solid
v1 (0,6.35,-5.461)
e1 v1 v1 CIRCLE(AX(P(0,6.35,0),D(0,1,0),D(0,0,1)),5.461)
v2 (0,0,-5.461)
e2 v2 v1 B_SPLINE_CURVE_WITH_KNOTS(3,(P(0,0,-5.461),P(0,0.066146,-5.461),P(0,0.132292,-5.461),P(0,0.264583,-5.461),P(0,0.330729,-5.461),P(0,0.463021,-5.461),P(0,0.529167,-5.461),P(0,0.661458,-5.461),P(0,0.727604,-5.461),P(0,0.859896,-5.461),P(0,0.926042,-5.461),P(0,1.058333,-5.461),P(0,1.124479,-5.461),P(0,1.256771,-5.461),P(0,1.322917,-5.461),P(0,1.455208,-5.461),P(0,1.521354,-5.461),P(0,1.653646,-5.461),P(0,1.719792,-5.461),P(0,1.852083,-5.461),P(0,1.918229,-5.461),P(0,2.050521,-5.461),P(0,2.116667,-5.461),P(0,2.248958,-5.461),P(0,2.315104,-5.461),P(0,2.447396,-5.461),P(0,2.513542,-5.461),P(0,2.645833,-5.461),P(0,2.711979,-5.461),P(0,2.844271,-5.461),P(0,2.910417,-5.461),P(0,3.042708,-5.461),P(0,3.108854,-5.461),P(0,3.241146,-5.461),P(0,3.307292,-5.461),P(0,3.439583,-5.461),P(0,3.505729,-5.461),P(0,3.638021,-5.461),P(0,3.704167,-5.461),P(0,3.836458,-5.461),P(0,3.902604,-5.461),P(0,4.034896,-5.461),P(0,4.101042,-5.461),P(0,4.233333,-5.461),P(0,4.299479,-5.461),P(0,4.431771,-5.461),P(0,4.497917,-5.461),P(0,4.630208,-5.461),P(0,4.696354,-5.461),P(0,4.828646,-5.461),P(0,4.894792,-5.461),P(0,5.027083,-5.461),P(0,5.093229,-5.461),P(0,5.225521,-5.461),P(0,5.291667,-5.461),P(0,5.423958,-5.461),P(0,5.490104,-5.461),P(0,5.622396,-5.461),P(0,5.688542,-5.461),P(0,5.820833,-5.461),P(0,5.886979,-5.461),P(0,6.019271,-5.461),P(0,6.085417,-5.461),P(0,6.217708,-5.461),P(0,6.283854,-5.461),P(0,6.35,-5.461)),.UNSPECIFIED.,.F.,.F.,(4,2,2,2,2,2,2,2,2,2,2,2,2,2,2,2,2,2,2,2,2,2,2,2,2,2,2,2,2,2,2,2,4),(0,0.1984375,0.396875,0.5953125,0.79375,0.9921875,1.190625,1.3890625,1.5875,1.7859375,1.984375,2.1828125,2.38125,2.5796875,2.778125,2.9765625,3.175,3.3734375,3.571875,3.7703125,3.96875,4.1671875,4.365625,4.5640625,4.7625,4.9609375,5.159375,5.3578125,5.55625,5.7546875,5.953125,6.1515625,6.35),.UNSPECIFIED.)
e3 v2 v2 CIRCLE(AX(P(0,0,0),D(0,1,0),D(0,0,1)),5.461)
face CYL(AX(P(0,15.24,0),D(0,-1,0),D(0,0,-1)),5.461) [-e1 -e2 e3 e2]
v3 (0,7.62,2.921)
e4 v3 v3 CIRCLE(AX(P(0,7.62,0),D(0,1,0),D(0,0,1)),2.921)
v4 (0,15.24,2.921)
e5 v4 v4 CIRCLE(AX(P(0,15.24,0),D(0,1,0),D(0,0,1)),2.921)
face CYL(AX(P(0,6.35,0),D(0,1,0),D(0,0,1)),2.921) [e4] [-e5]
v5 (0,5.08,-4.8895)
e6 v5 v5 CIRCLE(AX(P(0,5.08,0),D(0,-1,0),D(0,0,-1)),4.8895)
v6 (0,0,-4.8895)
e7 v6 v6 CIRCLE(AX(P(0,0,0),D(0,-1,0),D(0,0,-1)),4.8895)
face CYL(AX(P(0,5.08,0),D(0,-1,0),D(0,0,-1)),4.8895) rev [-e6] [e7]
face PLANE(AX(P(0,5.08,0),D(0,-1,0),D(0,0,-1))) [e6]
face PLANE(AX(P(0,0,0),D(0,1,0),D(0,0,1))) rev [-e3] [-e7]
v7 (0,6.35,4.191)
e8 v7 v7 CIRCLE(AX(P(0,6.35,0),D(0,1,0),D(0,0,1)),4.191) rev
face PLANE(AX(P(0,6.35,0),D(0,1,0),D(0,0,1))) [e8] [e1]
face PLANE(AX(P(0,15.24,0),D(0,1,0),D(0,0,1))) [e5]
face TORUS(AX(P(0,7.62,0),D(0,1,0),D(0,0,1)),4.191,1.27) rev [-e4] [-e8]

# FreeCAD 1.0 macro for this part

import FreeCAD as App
import Part
import Sketcher

V = App.Vector
Q = App.Units.Quantity


def edges_at(feature, points):
    """Names of the edges that pass closest to the given points."""
    edges = feature.Shape.Edges
    near = lambda p: min(range(len(edges)), key=lambda i: edges[i].distToShape(Part.Vertex(*p))[0])
    return sorted({f"Edge{near(p) + 1}" for p in points})

doc = App.newDocument("Part")
body = doc.addObject("PartDesign::Body", "Body")

sketch1 = doc.addObject("Sketcher::SketchObject", "Sketch")
body.addObject(sketch1)
sketch1.AttachmentSupport = (doc.XZ_Plane, [""])
sketch1.MapMode = "FlatFace"
sketch1.addGeometry(Part.Circle(V(0, 0, 0), V(0, 0, 1), 5.461), False)
sketch1.addConstraint([
    Sketcher.Constraint("Coincident", 0, 3, -1, 1),
    Sketcher.Constraint("Diameter", 0, Q("0.43 in")),
])
pad1 = doc.addObject("PartDesign::Pad", "Pad")
body.addObject(pad1)
pad1.Profile = sketch1
pad1.Length = Q("0.6 in")
pad1.Reversed = True

sketch2 = doc.addObject("Sketcher::SketchObject", "Sketch001")
body.addObject(sketch2)
sketch2.AttachmentSupport = (doc.XZ_Plane, [""])
sketch2.MapMode = "FlatFace"
sketch2.AttachmentOffset = App.Placement(V(0, 0, -0.6 * 25.4), App.Rotation())
sketch2.addGeometry([
    Part.LineSegment(V(-8.631, -8.631, 0), V(-8.631, 8.631, 0)),
    Part.LineSegment(V(-8.631, 8.631, 0), V(8.631, 8.631, 0)),
    Part.LineSegment(V(8.631, 8.631, 0), V(8.631, -8.631, 0)),
    Part.LineSegment(V(8.631, -8.631, 0), V(-8.631, -8.631, 0)),
    Part.Circle(V(0, 0, 0), V(0, 0, 1), 2.921),
], False)
sketch2.addConstraint([
    Sketcher.Constraint("Coincident", 0, 2, 1, 1),
    Sketcher.Constraint("Coincident", 1, 2, 2, 1),
    Sketcher.Constraint("Coincident", 2, 2, 3, 1),
    Sketcher.Constraint("Coincident", 3, 2, 0, 1),
    Sketcher.Constraint("Vertical", 0),
    Sketcher.Constraint("Horizontal", 1),
    Sketcher.Constraint("Vertical", 2),
    Sketcher.Constraint("Horizontal", 3),
    Sketcher.Constraint("Coincident", 4, 3, -1, 1),
    Sketcher.Constraint("Symmetric", 0, 2, 2, 2, -1, 1),
    Sketcher.Constraint("Equal", 3, 0),
    Sketcher.Constraint("Diameter", 4, Q("0.23 in")),
    Sketcher.Constraint("DistanceX", 1, 1, 1, 2, Q("17.262 mm")),
])
pocket1 = doc.addObject("PartDesign::Pocket", "Pocket")
body.addObject(pocket1)
pocket1.Profile = sketch2
pocket1.Length = Q("0.35 in")
pocket1.Reversed = True

sketch3 = doc.addObject("Sketcher::SketchObject", "Sketch002")
body.addObject(sketch3)
sketch3.AttachmentSupport = (doc.XZ_Plane, [""])
sketch3.MapMode = "FlatFace"
sketch3.addGeometry(Part.Circle(V(0, 0, 0), V(0, 0, 1), 4.8895), False)
sketch3.addConstraint([
    Sketcher.Constraint("Coincident", 0, 3, -1, 1),
    Sketcher.Constraint("Diameter", 0, Q("0.385 in")),
])
pocket2 = doc.addObject("PartDesign::Pocket", "Pocket001")
body.addObject(pocket2)
pocket2.Profile = sketch3
pocket2.Length = Q("0.2 in")
doc.recompute()

fillet = doc.addObject("PartDesign::Fillet", "Fillet")
body.addObject(fillet)
fillet.Base = (pocket2, edges_at(pocket2, [(0, 6.35, -2.921)]))
fillet.Radius = Q("0.05 in")

doc.recompute()
